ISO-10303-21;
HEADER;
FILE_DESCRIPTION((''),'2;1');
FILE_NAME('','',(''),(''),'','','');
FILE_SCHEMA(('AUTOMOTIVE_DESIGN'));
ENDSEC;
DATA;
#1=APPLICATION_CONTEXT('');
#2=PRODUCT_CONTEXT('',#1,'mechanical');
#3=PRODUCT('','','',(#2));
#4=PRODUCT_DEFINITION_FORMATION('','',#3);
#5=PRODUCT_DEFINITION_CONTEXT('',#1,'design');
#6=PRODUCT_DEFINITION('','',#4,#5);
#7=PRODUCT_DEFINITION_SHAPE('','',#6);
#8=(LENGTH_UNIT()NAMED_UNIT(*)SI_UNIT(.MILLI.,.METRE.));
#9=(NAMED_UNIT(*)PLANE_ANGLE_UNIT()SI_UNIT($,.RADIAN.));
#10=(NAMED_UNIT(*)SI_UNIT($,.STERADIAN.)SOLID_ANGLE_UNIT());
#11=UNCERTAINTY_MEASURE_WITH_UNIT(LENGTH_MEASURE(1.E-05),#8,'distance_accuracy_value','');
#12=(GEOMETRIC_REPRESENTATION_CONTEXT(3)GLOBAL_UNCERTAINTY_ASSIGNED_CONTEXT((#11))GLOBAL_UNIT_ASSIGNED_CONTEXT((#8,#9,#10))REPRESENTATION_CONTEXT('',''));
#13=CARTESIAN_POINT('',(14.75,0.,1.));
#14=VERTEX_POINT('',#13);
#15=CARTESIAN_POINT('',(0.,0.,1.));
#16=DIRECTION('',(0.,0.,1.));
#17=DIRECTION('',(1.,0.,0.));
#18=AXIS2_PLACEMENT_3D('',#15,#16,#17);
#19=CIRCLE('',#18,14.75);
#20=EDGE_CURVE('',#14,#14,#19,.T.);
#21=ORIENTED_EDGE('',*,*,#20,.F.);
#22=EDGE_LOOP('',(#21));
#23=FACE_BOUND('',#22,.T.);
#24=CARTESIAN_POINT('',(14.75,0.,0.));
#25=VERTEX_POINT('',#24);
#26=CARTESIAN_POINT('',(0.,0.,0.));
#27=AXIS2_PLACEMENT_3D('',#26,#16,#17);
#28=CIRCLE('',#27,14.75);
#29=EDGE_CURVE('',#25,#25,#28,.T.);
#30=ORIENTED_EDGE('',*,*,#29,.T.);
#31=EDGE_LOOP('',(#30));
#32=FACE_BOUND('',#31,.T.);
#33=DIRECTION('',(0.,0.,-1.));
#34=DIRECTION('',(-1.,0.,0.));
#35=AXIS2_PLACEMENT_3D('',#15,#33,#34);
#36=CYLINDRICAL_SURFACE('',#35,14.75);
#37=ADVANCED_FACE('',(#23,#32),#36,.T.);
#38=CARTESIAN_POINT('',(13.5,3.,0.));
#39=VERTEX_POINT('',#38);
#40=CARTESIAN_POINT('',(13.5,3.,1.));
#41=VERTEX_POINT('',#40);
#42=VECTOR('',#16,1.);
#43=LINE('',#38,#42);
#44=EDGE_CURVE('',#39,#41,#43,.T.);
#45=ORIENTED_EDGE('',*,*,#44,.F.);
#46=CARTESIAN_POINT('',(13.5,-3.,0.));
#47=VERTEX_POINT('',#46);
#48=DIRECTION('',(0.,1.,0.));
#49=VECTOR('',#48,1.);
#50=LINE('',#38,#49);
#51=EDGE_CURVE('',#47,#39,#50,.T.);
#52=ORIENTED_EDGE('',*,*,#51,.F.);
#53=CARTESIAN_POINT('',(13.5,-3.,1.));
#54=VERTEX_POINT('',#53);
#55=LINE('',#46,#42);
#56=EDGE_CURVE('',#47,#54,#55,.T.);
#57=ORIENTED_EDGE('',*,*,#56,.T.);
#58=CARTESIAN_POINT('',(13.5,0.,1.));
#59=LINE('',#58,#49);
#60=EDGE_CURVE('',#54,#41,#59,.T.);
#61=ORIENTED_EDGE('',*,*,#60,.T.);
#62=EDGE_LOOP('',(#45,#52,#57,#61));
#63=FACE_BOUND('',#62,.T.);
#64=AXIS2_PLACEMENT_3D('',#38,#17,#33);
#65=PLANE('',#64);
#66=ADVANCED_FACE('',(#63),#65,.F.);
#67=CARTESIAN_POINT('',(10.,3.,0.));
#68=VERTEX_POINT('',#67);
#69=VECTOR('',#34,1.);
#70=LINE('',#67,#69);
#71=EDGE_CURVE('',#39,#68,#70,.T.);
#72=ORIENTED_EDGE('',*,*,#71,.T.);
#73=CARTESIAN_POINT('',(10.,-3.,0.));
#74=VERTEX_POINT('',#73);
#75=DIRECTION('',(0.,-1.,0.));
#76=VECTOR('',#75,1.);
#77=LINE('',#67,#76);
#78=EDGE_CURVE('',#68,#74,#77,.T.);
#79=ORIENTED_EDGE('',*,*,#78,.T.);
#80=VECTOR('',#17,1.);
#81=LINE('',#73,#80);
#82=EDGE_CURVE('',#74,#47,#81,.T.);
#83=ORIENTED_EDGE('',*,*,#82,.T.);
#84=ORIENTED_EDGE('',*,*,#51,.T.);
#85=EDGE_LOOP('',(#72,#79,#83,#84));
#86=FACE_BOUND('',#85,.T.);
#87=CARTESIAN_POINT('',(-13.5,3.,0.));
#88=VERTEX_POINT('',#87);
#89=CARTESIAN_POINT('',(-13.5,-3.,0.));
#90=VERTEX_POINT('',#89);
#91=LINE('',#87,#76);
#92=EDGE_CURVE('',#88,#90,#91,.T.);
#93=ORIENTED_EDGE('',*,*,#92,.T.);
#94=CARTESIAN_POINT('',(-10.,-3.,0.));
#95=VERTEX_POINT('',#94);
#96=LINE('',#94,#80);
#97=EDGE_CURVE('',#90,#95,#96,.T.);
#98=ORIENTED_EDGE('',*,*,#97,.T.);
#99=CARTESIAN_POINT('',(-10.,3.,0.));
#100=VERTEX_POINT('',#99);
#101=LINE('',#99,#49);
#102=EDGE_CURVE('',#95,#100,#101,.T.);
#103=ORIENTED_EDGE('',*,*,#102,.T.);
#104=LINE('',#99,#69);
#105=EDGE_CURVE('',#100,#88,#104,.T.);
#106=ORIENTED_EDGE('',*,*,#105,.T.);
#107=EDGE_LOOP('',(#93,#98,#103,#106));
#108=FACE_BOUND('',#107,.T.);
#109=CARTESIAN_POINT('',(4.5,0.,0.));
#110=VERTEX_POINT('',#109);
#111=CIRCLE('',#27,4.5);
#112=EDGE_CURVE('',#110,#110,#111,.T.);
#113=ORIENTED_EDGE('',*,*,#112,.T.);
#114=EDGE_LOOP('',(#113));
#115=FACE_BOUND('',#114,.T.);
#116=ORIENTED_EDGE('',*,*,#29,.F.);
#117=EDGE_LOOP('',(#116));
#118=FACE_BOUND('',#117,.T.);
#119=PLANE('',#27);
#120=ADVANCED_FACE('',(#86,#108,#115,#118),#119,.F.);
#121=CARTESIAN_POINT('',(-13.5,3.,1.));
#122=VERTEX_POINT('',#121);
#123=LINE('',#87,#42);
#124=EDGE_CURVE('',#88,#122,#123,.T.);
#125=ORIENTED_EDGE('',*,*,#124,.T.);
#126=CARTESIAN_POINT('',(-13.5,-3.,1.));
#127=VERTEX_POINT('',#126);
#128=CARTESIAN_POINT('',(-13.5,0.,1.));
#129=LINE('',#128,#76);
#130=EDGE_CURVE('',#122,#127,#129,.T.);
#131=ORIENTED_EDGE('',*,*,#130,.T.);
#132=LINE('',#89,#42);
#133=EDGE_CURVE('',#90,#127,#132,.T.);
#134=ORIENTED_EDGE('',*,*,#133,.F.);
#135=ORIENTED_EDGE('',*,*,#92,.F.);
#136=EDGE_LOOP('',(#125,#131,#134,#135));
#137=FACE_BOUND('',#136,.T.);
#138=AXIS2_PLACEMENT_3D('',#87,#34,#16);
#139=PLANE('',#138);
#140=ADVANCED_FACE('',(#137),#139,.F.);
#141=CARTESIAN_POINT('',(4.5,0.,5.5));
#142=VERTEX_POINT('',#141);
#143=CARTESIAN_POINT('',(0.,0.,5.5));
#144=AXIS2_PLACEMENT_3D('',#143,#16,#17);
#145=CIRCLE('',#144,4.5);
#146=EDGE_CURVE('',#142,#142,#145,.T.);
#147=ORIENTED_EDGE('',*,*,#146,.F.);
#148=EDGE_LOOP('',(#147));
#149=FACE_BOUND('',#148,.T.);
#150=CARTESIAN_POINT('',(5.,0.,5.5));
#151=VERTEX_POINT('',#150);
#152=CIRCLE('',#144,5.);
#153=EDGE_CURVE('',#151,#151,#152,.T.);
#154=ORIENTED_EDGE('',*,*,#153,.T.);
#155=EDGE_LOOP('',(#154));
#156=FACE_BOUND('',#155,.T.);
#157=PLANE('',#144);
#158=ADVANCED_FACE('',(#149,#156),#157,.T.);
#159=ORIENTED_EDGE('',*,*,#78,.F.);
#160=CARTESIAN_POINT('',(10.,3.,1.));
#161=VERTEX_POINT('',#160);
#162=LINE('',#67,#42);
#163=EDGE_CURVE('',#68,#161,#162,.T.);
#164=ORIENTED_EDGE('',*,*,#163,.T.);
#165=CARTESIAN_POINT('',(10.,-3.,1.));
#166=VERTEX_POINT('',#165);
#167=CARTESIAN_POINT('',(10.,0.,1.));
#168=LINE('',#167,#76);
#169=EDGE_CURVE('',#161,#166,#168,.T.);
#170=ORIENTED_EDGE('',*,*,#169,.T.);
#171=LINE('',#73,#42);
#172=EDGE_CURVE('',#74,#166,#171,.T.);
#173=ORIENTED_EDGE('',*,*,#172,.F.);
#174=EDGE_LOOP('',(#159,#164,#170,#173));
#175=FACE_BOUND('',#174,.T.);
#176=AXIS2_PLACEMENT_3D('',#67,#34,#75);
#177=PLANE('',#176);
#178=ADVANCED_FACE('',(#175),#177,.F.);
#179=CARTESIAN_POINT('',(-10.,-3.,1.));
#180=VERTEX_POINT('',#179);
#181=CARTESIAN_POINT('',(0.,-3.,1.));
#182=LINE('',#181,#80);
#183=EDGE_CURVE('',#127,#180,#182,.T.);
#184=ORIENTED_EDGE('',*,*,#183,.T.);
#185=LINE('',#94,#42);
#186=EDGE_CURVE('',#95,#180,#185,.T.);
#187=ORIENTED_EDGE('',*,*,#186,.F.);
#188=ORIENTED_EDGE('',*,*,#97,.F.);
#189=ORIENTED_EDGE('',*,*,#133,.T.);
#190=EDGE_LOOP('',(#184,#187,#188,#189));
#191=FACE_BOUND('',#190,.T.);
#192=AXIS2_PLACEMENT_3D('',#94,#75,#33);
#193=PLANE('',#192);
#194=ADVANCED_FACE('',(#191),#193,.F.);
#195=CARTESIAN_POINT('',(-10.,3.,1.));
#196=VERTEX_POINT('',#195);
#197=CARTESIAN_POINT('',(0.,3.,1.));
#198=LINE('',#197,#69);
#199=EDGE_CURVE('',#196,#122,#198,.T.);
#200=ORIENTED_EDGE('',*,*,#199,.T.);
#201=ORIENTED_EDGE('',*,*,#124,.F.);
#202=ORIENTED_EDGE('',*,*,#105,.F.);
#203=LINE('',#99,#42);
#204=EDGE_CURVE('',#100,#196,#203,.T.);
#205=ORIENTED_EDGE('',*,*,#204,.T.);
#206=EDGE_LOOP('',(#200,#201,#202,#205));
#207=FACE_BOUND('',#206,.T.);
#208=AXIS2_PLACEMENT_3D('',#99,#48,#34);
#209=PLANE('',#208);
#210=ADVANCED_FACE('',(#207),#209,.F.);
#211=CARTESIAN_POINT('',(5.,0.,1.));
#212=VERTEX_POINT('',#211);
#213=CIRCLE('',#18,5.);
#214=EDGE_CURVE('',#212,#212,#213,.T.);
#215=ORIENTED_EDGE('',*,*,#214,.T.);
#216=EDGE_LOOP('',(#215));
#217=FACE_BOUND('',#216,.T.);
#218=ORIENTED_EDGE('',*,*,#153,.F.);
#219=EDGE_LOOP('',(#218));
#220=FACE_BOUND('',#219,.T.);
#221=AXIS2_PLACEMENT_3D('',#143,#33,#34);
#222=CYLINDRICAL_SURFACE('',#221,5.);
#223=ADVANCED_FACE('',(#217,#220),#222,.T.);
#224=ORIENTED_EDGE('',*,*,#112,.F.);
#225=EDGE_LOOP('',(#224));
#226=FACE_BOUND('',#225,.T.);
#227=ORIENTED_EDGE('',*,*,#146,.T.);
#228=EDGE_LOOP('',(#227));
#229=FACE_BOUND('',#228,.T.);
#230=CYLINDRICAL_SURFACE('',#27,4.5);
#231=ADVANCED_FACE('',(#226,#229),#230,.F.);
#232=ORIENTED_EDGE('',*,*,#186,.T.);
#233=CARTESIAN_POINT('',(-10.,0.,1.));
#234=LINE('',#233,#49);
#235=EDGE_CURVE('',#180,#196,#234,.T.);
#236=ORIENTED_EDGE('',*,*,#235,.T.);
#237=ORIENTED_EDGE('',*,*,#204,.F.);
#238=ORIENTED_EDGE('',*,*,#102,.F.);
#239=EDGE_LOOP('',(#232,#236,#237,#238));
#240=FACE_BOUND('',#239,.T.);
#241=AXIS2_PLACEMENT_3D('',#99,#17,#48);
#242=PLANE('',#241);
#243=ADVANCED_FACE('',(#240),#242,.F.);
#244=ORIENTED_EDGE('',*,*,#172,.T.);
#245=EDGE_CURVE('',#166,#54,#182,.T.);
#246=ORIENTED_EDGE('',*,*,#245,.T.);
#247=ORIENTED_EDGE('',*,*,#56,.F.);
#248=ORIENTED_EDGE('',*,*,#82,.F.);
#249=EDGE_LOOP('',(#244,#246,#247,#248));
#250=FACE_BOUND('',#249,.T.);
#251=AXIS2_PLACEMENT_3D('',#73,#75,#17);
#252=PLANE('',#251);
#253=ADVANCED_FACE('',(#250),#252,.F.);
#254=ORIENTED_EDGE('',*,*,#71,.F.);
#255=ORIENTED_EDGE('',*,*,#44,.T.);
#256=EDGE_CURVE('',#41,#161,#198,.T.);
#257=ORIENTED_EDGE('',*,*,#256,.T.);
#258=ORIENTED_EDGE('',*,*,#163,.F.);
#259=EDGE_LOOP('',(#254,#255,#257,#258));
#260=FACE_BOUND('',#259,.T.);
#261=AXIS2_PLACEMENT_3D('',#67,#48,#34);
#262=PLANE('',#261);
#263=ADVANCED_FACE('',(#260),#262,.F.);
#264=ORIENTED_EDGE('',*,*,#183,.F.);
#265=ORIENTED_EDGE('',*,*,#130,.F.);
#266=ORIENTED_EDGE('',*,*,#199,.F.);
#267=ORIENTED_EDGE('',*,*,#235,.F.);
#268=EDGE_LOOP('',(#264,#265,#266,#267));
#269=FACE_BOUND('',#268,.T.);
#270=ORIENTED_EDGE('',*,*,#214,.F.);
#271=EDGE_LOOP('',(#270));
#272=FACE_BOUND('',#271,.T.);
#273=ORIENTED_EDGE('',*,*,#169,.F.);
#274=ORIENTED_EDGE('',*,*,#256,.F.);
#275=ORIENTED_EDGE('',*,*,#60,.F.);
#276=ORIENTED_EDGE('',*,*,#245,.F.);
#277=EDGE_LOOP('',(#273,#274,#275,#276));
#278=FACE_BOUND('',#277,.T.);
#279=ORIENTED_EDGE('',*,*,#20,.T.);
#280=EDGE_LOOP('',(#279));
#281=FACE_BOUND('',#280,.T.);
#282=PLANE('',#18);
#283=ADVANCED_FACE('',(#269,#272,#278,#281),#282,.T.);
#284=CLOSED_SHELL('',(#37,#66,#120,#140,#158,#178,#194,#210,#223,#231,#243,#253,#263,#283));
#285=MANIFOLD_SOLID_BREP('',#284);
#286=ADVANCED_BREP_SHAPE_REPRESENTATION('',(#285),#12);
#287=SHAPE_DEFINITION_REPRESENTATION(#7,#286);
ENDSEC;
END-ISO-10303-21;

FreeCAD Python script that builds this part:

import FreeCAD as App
import Part
import Sketcher
from FreeCAD import Vector
Q = App.Units.Quantity


def add_polygon(sketch, points):
    """Adds a closed chain of lines whose ends are joined by coincident constraints."""
    first, n = sketch.GeometryCount, len(points)
    for a, b in zip(points, points[1:] + points[:1]):
        sketch.addGeometry(Part.LineSegment(App.Vector(*a, 0), App.Vector(*b, 0)), False)
    for i in range(n):
        sketch.addConstraint(Sketcher.Constraint("Coincident", first + i, 2, first + (i + 1) % n, 1))

doc = App.newDocument("Part")
body = doc.addObject("PartDesign::Body", "Body")

# Sketch on XY plane
sketch1 = body.newObject("Sketcher::SketchObject", "Sketch")
sketch1.AttachmentSupport = (doc.getObject("XY_Plane"), [""])
sketch1.MapMode = "FlatFace"
sketch1.addGeometry(Part.Circle(Vector(0, 0, 0), Vector(0, 0, 1), 15), False)
sketch1.addConstraint(Sketcher.Constraint("Coincident", 0, 3, -1, 1))
sketch1.addConstraint(Sketcher.Constraint("Diameter", 0, Q("29.5 mm")))
pad1 = body.newObject("PartDesign::Pad", "Pad")
pad1.Profile = sketch1
pad1.Length = 1

# Sketch on XY plane
sketch2 = body.newObject("Sketcher::SketchObject", "Sketch001")
sketch2.AttachmentSupport = (doc.getObject("XY_Plane"), [""])
sketch2.MapMode = "FlatFace"
sketch2.AttachmentOffset = App.Placement(Vector(0, 0, 1), App.Rotation())
sketch2.addGeometry(Part.Circle(Vector(0, 0, 0), Vector(0, 0, 1), 5), False)
sketch2.addConstraint(Sketcher.Constraint("Coincident", 0, 3, -1, 1))
sketch2.addConstraint(Sketcher.Constraint("Diameter", 0, Q("10 mm")))
pad2 = body.newObject("PartDesign::Pad", "Pad001")
pad2.Profile = sketch2
pad2.Length = 4.5

# Sketch on XY plane
sketch3 = body.newObject("Sketcher::SketchObject", "Sketch002")
sketch3.AttachmentSupport = (doc.getObject("XY_Plane"), [""])
sketch3.MapMode = "FlatFace"
sketch3.AttachmentOffset = App.Placement(Vector(0, 0, 5.5), App.Rotation())
sketch3.addGeometry(Part.Circle(Vector(0, 0, 0), Vector(0, 0, 1), 4.5), False)  # 0
add_polygon(sketch3, [(-13.5, 3), (-13.5, -3), (-10, -3), (-10, 3)])  # lines 1-4
add_polygon(sketch3, [(10, 3), (10, -3), (13.5, -3), (13.5, 3)])  # lines 5-8
sketch3.addConstraint(Sketcher.Constraint("Vertical", 1))
sketch3.addConstraint(Sketcher.Constraint("Horizontal", 2))
sketch3.addConstraint(Sketcher.Constraint("Vertical", 3))
sketch3.addConstraint(Sketcher.Constraint("Horizontal", 4))
sketch3.addConstraint(Sketcher.Constraint("Vertical", 5))
sketch3.addConstraint(Sketcher.Constraint("Horizontal", 6))
sketch3.addConstraint(Sketcher.Constraint("Vertical", 7))
sketch3.addConstraint(Sketcher.Constraint("Horizontal", 8))
sketch3.addConstraint(Sketcher.Constraint("Coincident", 0, 3, -1, 1))
sketch3.addConstraint(Sketcher.Constraint("Symmetric", 3, 2, 5, 2, -1, 1))
sketch3.addConstraint(Sketcher.Constraint("Symmetric", 1, 2, 7, 2, -1, 1))
sketch3.addConstraint(Sketcher.Constraint("Horizontal", 2, 2, 5, 2))
sketch3.addConstraint(Sketcher.Constraint("Diameter", 0, Q("9 mm")))
sketch3.addConstraint(Sketcher.Constraint("DistanceY", 1, 2, 1, 1, Q("6 mm")))
sketch3.addConstraint(Sketcher.Constraint("DistanceX", 2, 1, 2, 2, Q("3.5 mm")))
sketch3.addConstraint(Sketcher.Constraint("DistanceX", 2, 2, -1, 1, Q("10 mm")))
pocket1 = body.newObject("PartDesign::Pocket", "Pocket")
pocket1.Profile = sketch3
pocket1.Type = "ThroughAll"

doc.recompute()
